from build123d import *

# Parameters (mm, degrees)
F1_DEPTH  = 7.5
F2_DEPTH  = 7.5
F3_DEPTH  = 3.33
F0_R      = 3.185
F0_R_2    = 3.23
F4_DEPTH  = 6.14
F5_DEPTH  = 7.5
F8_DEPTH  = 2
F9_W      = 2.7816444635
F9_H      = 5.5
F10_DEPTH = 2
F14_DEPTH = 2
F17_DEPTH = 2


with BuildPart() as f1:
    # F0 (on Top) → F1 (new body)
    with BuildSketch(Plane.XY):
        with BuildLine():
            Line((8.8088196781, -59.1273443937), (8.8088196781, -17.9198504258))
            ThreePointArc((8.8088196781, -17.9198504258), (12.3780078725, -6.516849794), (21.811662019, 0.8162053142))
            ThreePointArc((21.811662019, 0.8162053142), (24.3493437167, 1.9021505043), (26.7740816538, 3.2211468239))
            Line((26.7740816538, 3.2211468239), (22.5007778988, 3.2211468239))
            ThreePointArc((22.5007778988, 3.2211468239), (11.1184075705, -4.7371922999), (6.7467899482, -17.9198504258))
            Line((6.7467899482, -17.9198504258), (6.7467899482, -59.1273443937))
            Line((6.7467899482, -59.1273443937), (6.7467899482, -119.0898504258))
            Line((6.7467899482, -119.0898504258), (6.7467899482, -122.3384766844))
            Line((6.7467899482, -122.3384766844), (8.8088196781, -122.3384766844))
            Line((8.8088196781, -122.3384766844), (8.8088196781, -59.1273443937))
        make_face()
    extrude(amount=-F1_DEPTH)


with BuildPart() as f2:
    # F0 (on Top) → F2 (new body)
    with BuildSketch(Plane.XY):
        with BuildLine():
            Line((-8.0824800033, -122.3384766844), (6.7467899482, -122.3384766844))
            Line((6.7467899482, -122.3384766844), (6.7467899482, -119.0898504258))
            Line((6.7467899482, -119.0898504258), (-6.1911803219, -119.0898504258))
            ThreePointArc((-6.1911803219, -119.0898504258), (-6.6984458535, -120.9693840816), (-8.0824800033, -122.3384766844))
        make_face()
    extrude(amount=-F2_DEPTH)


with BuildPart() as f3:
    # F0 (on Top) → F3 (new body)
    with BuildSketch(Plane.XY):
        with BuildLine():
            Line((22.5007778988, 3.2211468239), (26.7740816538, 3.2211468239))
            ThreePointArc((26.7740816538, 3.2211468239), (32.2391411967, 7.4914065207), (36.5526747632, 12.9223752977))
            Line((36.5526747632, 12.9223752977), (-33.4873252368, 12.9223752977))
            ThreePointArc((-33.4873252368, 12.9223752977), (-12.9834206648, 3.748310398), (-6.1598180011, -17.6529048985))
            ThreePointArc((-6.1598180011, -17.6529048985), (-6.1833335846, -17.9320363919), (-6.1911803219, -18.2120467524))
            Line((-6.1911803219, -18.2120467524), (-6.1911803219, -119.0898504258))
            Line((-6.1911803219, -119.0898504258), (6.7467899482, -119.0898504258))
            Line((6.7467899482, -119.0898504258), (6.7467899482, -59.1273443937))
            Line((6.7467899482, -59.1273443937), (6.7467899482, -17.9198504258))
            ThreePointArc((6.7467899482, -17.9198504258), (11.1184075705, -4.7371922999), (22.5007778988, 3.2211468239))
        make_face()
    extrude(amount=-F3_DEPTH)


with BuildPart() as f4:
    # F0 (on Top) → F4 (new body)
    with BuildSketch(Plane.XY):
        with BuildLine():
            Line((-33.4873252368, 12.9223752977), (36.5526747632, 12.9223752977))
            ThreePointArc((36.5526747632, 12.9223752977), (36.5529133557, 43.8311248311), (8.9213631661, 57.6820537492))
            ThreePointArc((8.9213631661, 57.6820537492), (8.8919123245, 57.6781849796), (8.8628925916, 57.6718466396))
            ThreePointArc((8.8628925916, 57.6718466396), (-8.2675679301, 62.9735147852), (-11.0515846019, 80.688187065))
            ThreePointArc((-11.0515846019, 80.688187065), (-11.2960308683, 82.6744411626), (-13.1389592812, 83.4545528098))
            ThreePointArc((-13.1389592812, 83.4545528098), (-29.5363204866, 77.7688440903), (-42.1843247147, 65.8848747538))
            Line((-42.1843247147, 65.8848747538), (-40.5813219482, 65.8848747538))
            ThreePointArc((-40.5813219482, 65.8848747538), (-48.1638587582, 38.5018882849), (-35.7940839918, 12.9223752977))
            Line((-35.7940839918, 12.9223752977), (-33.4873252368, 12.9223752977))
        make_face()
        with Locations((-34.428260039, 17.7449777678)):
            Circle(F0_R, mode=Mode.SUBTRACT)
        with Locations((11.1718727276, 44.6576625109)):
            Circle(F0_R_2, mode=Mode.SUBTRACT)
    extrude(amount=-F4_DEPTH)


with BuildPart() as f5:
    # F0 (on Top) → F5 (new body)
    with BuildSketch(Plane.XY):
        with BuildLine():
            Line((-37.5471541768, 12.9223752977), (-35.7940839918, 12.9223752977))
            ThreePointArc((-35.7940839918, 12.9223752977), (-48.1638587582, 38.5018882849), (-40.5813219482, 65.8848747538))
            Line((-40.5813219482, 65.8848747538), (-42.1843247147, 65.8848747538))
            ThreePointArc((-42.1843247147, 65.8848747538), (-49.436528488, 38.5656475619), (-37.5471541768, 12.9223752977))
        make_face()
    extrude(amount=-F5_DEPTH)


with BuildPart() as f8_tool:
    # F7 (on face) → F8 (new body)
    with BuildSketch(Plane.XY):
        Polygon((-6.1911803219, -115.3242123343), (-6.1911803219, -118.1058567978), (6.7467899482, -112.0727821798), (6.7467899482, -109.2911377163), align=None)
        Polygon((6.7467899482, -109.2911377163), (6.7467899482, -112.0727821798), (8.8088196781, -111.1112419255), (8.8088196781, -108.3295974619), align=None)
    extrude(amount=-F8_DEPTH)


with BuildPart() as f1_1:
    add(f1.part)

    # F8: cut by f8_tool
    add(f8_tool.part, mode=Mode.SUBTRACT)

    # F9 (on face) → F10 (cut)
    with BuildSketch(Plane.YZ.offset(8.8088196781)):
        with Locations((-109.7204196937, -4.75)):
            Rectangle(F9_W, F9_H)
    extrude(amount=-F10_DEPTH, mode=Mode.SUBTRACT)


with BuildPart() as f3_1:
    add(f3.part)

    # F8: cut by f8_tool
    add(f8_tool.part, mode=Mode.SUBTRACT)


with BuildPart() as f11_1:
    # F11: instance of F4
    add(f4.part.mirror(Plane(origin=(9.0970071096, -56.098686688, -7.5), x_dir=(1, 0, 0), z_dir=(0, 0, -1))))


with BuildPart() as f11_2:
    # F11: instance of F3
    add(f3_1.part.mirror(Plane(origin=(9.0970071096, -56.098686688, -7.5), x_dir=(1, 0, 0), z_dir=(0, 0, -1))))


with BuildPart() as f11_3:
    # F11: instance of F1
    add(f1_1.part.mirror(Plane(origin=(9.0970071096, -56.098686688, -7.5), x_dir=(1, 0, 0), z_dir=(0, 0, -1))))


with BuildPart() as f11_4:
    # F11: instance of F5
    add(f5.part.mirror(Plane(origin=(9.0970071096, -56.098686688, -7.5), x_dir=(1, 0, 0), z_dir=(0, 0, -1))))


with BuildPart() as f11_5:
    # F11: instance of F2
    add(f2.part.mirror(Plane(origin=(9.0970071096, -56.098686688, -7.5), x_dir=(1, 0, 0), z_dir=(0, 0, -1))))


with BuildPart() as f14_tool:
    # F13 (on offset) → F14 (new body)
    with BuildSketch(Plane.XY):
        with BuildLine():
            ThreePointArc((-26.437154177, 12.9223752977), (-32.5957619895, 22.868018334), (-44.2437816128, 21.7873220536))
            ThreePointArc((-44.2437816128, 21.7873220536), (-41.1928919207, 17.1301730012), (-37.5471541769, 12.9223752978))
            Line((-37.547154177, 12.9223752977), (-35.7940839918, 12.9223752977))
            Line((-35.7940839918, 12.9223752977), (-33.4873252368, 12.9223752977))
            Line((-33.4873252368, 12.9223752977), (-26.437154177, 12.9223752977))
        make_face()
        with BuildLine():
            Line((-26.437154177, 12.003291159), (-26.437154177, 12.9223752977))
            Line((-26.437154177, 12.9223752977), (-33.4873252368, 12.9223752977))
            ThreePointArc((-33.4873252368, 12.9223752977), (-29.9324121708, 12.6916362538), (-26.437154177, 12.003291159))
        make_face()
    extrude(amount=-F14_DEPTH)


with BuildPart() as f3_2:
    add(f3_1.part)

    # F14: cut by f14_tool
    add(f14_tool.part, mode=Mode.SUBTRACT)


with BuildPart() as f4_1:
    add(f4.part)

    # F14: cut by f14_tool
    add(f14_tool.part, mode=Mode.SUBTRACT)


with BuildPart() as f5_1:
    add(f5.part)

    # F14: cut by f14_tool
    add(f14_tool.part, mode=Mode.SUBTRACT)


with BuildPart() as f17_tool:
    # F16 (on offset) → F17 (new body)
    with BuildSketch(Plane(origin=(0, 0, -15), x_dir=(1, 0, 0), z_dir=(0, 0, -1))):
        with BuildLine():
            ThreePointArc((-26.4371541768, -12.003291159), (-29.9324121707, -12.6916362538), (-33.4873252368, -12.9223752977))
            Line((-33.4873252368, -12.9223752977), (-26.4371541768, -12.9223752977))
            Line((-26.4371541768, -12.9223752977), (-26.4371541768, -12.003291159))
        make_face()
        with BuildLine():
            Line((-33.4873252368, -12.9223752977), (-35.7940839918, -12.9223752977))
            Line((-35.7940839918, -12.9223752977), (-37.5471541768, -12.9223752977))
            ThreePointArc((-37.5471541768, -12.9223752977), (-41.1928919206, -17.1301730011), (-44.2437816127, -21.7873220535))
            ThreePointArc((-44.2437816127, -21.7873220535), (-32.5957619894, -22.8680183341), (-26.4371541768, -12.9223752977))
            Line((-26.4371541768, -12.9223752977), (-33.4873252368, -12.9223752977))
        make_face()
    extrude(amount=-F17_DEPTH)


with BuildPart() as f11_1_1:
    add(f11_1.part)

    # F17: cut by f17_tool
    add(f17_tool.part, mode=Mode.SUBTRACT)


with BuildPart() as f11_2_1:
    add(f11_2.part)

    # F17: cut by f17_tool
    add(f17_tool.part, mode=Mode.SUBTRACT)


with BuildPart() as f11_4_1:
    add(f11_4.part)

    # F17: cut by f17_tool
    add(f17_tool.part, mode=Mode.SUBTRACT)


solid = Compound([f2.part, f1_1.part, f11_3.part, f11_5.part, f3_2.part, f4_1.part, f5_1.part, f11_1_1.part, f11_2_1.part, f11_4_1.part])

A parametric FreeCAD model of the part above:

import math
import FreeCAD as App
import Part
import Sketcher
Q = App.Units.Quantity


def add_polygon(sketch, points):
    """Adds a closed chain of lines whose ends are joined by coincident constraints."""
    first, n = sketch.GeometryCount, len(points)
    for a, b in zip(points, points[1:] + points[:1]):
        sketch.addGeometry(Part.LineSegment(App.Vector(*a, 0), App.Vector(*b, 0)), False)
    for i in range(n):
        sketch.addConstraint(Sketcher.Constraint("Coincident", first + i, 2, first + (i + 1) % n, 1))

doc = App.newDocument("Part")
body = doc.addObject("PartDesign::Body", "Body")

# Sketch on XY plane
sketch1 = body.newObject("Sketcher::SketchObject", "Sketch")
sketch1.AttachmentSupport = (doc.getObject("XY_Plane"), [""])
sketch1.MapMode = "FlatFace"
sketch1.addGeometry([
    Part.ArcOfCircle(Part.Circle(App.Vector(28.8, -17.9, 0), App.Vector(0, 0, 1), 20), math.radians(110), math.radians(180)),  # 0
    Part.ArcOfCircle(Part.Circle(App.Vector(11.5, 28.4, 0), App.Vector(0, 0, 1), 29.4), math.radians(-69.52), math.radians(-58.77)),  # 1
    Part.LineSegment(App.Vector(26.8, 3.2, 0), App.Vector(22.5, 3.2, 0)),  # 2
    Part.ArcOfCircle(Part.Circle(App.Vector(28.8, -17.9, 0), App.Vector(0, 0, 1), 22.1), math.radians(107), math.radians(180)),  # 3
    Part.LineSegment(App.Vector(6.7, -17.9, 0), App.Vector(6.7, -122.3, 0)),  # 4
    Part.LineSegment(App.Vector(6.7, -122.3, 0), App.Vector(8.8, -122.3, 0)),  # 5
    Part.LineSegment(App.Vector(8.8, -122.3, 0), App.Vector(8.8, -17.9, 0)),  # 6
], False)
sketch1.addConstraint([
    Sketcher.Constraint("Tangent", 0, 1, 1, 1),
    Sketcher.Constraint("Coincident", 1, 2, 2, 1),
    Sketcher.Constraint("Coincident", 2, 2, 3, 1),
    Sketcher.Constraint("Tangent", 3, 2, 4, 1),
    Sketcher.Constraint("Coincident", 4, 2, 5, 1),
    Sketcher.Constraint("Coincident", 5, 2, 6, 1),
    Sketcher.Constraint("Tangent", 6, 2, 0, 2),
    Sketcher.Constraint("Horizontal", 2),
    Sketcher.Constraint("Vertical", 4),
    Sketcher.Constraint("Horizontal", 5),
    Sketcher.Constraint("Vertical", 6),
    Sketcher.Constraint("Coincident", 3, 3, 0, 3),
    Sketcher.Constraint("Radius", 0, 20.0),
    Sketcher.Constraint("Radius", 1, 29.42),
    Sketcher.Constraint("Radius", 3, 22.06203),
    Sketcher.Constraint("DistanceX", 2, 2, 2, 1, 4.273304),
    Sketcher.Constraint("DistanceY", 4, 2, 4, 1, 104.418626),
    Sketcher.Constraint("DistanceX", -1, 1, 0, 3, 28.80882),
    Sketcher.Constraint("DistanceY", 0, 3, -1, 1, 17.91985),
    Sketcher.Constraint("DistanceX", -1, 1, 1, 2, 26.774082),
])
pad1 = body.newObject("PartDesign::Pad", "Pad")
pad1.Profile = sketch1
pad1.Length = 7.5
pad1.Reversed = True
body2 = doc.addObject("PartDesign::Body", "Body001")

# Sketch on XY plane
sketch2 = body2.newObject("Sketcher::SketchObject", "Sketch001")
sketch2.AttachmentSupport = (doc.getObject("XY_Plane001"), [""])
sketch2.MapMode = "FlatFace"
sketch2.addGeometry([
    Part.LineSegment(App.Vector(-8.1, -122.3, 0), App.Vector(6.7, -122.3, 0)),
    Part.LineSegment(App.Vector(6.7, -122.3, 0), App.Vector(6.7, -119.1, 0)),
    Part.LineSegment(App.Vector(6.7, -119.1, 0), App.Vector(-6.2, -119.1, 0)),
    Part.ArcOfCircle(Part.Circle(App.Vector(-9.9, -119.1, 0), App.Vector(0, 0, 1), 3.7), math.radians(-60), math.radians(0)),
], False)
sketch2.addConstraint([
    Sketcher.Constraint("Coincident", 0, 2, 1, 1),
    Sketcher.Constraint("Coincident", 1, 2, 2, 1),
    Sketcher.Constraint("Coincident", 2, 2, 3, 2),
    Sketcher.Constraint("Coincident", 3, 1, 0, 1),
    Sketcher.Constraint("Horizontal", 0),
    Sketcher.Constraint("Vertical", 1),
    Sketcher.Constraint("Horizontal", 2),
    Sketcher.Constraint("Horizontal", 3, 3, 1, 2),
    Sketcher.Constraint("Radius", 3, 3.735682),
    Sketcher.Constraint("DistanceX", 0, 1, 0, 2, 14.82927),
    Sketcher.Constraint("DistanceX", 2, 2, 2, 1, 12.93797),
    Sketcher.Constraint("DistanceX", 3, 3, -1, 1, 9.926862),
    Sketcher.Constraint("DistanceY", 3, 3, -1, 1, 119.08985),
])
pad2 = body2.newObject("PartDesign::Pad", "Pad001")
pad2.Profile = sketch2
pad2.Length = 7.5
pad2.Reversed = True
body3 = doc.addObject("PartDesign::Body", "Body002")

# Sketch on XY plane
sketch3 = body3.newObject("Sketcher::SketchObject", "Sketch002")
sketch3.AttachmentSupport = (doc.getObject("XY_Plane002"), [""])
sketch3.MapMode = "FlatFace"
sketch3.addGeometry([
    Part.LineSegment(App.Vector(22.5, 3.2, 0), App.Vector(26.8, 3.2, 0)),  # 0
    Part.ArcOfCircle(Part.Circle(App.Vector(11.5, 28.4, 0), App.Vector(0, 0, 1), 29.4), math.radians(-59), math.radians(-32)),  # 1
    Part.LineSegment(App.Vector(36.6, 12.9, 0), App.Vector(-33.5, 12.9, 0)),  # 2
    Part.ArcOfCircle(Part.Circle(App.Vector(-33.5, -14.6, 0), App.Vector(0, 0, 1), 27.5), math.radians(-6), math.radians(90)),  # 3
    Part.ArcOfCircle(Part.Circle(App.Vector(-1.2, -18.2, 0), App.Vector(0, 0, 1), 5), math.radians(173.58), math.radians(180)),  # 4
    Part.LineSegment(App.Vector(-6.2, -18.2, 0), App.Vector(-6.2, -119.1, 0)),  # 5
    Part.LineSegment(App.Vector(-6.2, -119.1, 0), App.Vector(6.7, -119.1, 0)),  # 6
    Part.LineSegment(App.Vector(6.7, -119.1, 0), App.Vector(6.7, -17.9, 0)),  # 7
    Part.ArcOfCircle(Part.Circle(App.Vector(28.8, -17.9, 0), App.Vector(0, 0, 1), 22.1), math.radians(107), math.radians(180)),  # 8
], False)
sketch3.addConstraint([
    Sketcher.Constraint("Coincident", 0, 2, 1, 1),
    Sketcher.Constraint("Coincident", 1, 2, 2, 1),
    Sketcher.Constraint("Tangent", 2, 2, 3, 2),
    Sketcher.Constraint("Tangent", 3, 1, 4, 1),
    Sketcher.Constraint("Tangent", 4, 2, 5, 1),
    Sketcher.Constraint("Coincident", 5, 2, 6, 1),
    Sketcher.Constraint("Coincident", 6, 2, 7, 1),
    Sketcher.Constraint("Tangent", 7, 2, 8, 2),
    Sketcher.Constraint("Coincident", 8, 1, 0, 1),
    Sketcher.Constraint("Horizontal", 0),
    Sketcher.Constraint("Horizontal", 2),
    Sketcher.Constraint("Vertical", 5),
    Sketcher.Constraint("Horizontal", 6),
    Sketcher.Constraint("Vertical", 7),
    Sketcher.Constraint("Radius", 4, 5.0),
    Sketcher.Constraint("Radius", 3, 27.5),
    Sketcher.Constraint("Radius", 1, 29.42),
    Sketcher.Constraint("DistanceX", 4, 3, 8, 3, 30.0),
    Sketcher.Constraint("DistanceX", 2, 2, 2, 1, 70.04),
    Sketcher.Constraint("DistanceY", 7, 1, 7, 2, 101.17),
    Sketcher.Constraint("Radius", 8, 22.06203),
    Sketcher.Constraint("DistanceX", 3, 1, 0, 2, 32.9339),
    Sketcher.Constraint("DistanceX", 0, 1, 0, 2, 4.273304),
    Sketcher.Constraint("DistanceY", 5, 2, 5, 1, 100.877804),
    Sketcher.Constraint("DistanceX", 4, 3, -1, 1, 1.19118),
    Sketcher.Constraint("DistanceY", 8, 3, -1, 1, 17.91985),
    Sketcher.Constraint("DistanceX", -1, 1, 0, 2, 26.774082),
])
pad3 = body3.newObject("PartDesign::Pad", "Pad002")
pad3.Profile = sketch3
pad3.Length = 3.33
pad3.Reversed = True
body4 = doc.addObject("PartDesign::Body", "Body003")

# Sketch on XY plane
sketch4 = body4.newObject("Sketcher::SketchObject", "Sketch003")
sketch4.AttachmentSupport = (doc.getObject("XY_Plane003"), [""])
sketch4.MapMode = "FlatFace"
sketch4.addGeometry([
    Part.ArcOfCircle(Part.Circle(App.Vector(11.52, 28.38, 0), App.Vector(0, 0, 1), 29.42), math.radians(-32), math.radians(95)),  # 0
    Part.ArcOfCircle(Part.Circle(App.Vector(8.95, 57.33, 0), App.Vector(0, 0, 1), 0.35), math.radians(95.07), math.radians(104.74)),  # 1
    Part.ArcOfCircle(Part.Circle(App.Vector(4.55, 74.06, 0), App.Vector(0, 0, 1), 16.95), math.radians(157), math.radians(285)),  # 2
    Part.ArcOfCircle(Part.Circle(App.Vector(-12.89, 81.47, 0), App.Vector(0, 0, 1), 2), math.radians(-23), math.radians(97)),  # 3
    Part.ArcOfCircle(Part.Circle(App.Vector(-8.02, 42.19, 0), App.Vector(0, 0, 1), 41.58), math.radians(97), math.radians(145)),  # 4
    Part.LineSegment(App.Vector(-42.18, 65.88, 0), App.Vector(-40.58, 65.88, 0)),  # 5
    Part.ArcOfCircle(Part.Circle(App.Vector(-8.03, 42.13, 0), App.Vector(0, 0, 1), 40.3), math.radians(144), math.radians(226)),  # 6
    Part.LineSegment(App.Vector(-35.79, 12.92, 0), App.Vector(36.55, 12.92, 0)),  # 7
    Part.Circle(App.Vector(-34.43, 17.74, 0), App.Vector(0, 0, 1), 3.19),  # 8
    Part.Circle(App.Vector(11.17, 44.66, 0), App.Vector(0, 0, 1), 3.23),  # 9
], False)
sketch4.addConstraint([
    Sketcher.Constraint("Tangent", 0, 2, 1, 1),
    Sketcher.Constraint("Tangent", 1, 2, 2, 2),
    Sketcher.Constraint("Tangent", 2, 1, 3, 1),
    Sketcher.Constraint("Tangent", 3, 2, 4, 1),
    Sketcher.Constraint("Coincident", 4, 2, 5, 1),
    Sketcher.Constraint("Coincident", 5, 2, 6, 1),
    Sketcher.Constraint("Coincident", 6, 2, 7, 1),
    Sketcher.Constraint("Coincident", 7, 2, 0, 1),
    Sketcher.Constraint("Horizontal", 5),
    Sketcher.Constraint("Horizontal", 7),
    Sketcher.Constraint("Radius", 3, 2.0),
    Sketcher.Constraint("Diameter", 8, 6.37),
    Sketcher.Constraint("Diameter", 9, 6.46),
    Sketcher.Constraint("Radius", 0, 29.42),
    Sketcher.Constraint("Radius", 2, 16.95),
    Sketcher.Constraint("Radius", 4, 41.579112),
    Sketcher.Constraint("Radius", 1, 0.351954),
    Sketcher.Constraint("Radius", 6, 40.298333),
    Sketcher.Constraint("DistanceX", 7, 1, 7, 2, 72.346759),
    Sketcher.Constraint("DistanceY", 4, 3, 9, 3, 2.4654),
    Sketcher.Constraint("DistanceY", 0, 2, 3, 2, 25.772499),
    Sketcher.Constraint("DistanceY", 6, 2, 5, 2, 52.962499),
    Sketcher.Constraint("DistanceY", 7, 2, 1, 3, 44.409099),
    Sketcher.Constraint("DistanceX", 5, 1, 5, 2, 1.603003),
    Sketcher.Constraint("DistanceX", -1, 1, 2, 3, 4.550458),
    Sketcher.Constraint("DistanceX", 4, 3, -1, 1, 8.015879),
    Sketcher.Constraint("DistanceX", 8, 3, -1, 1, 34.42826),
    Sketcher.Constraint("DistanceX", 3, 2, -1, 1, 13.138959),
    Sketcher.Constraint("DistanceY", 0, 3, 1, 3, 28.954531),
    Sketcher.Constraint("DistanceX", 9, 3, 0, 3, 0.34697),
    Sketcher.Constraint("DistanceY", -1, 1, 0, 3, 28.376943),
    Sketcher.Constraint("DistanceY", -1, 1, 8, 3, 17.744978),
])
pad4 = body4.newObject("PartDesign::Pad", "Pad003")
pad4.Profile = sketch4
pad4.Length = 6.14
pad4.Reversed = True
body5 = doc.addObject("PartDesign::Body", "Body004")

# Sketch on XY plane
sketch5 = body5.newObject("Sketcher::SketchObject", "Sketch004")
sketch5.AttachmentSupport = (doc.getObject("XY_Plane004"), [""])
sketch5.MapMode = "FlatFace"
sketch5.addGeometry([
    Part.LineSegment(App.Vector(-37.5, 12.9, 0), App.Vector(-35.8, 12.9, 0)),
    Part.ArcOfCircle(Part.Circle(App.Vector(-8, 42.1, 0), App.Vector(0, 0, 1), 40.3), math.radians(144), math.radians(226)),
    Part.LineSegment(App.Vector(-40.6, 65.9, 0), App.Vector(-42.2, 65.9, 0)),
    Part.ArcOfCircle(Part.Circle(App.Vector(-8, 42.2, 0), App.Vector(0, 0, 1), 41.6), math.radians(145), math.radians(225)),
], False)
sketch5.addConstraint([
    Sketcher.Constraint("Coincident", 0, 2, 1, 2),
    Sketcher.Constraint("Coincident", 1, 1, 2, 1),
    Sketcher.Constraint("Coincident", 2, 2, 3, 1),
    Sketcher.Constraint("Coincident", 3, 2, 0, 1),
    Sketcher.Constraint("Horizontal", 0),
    Sketcher.Constraint("Horizontal", 2),
    Sketcher.Constraint("Radius", 3, 41.579112),
    Sketcher.Constraint("Radius", 1, 40.298333),
    Sketcher.Constraint("DistanceX", 0, 1, 0, 2, 1.75307),
    Sketcher.Constraint("DistanceY", 0, 2, 1, 1, 52.962499),
    Sketcher.Constraint("DistanceX", 2, 2, 2, 1, 1.603003),
    Sketcher.Constraint("DistanceX", 3, 3, -1, 1, 8.015879),
    Sketcher.Constraint("DistanceX", 1, 1, -1, 1, 40.581322),
    Sketcher.Constraint("DistanceY", -1, 1, 1, 3, 42.129633),
])
pad5 = body5.newObject("PartDesign::Pad", "Pad004")
pad5.Profile = sketch5
pad5.Length = 7.5
pad5.Reversed = True
body6 = doc.addObject("PartDesign::Body", "Body005")

# Sketch on XY plane
sketch6 = body6.newObject("Sketcher::SketchObject", "Sketch005")
sketch6.AttachmentSupport = (doc.getObject("XY_Plane005"), [""])
sketch6.MapMode = "FlatFace"
add_polygon(sketch6, [(-6.2, -115.3), (-6.2, -118.1), (6.7, -112.1), (8.8, -111.1), (8.8, -108.3), (6.7, -109.3)])  # lines 0-5
sketch6.addConstraint([
    Sketcher.Constraint("Vertical", 0),
    Sketcher.Constraint("Vertical", 3),
    Sketcher.Constraint("Parallel", 1, 2),
    Sketcher.Constraint("Parallel", 2, 4),
    Sketcher.Constraint("Parallel", 4, 5),
    Sketcher.Constraint("Vertical", 1, 2, 4, 2),
    Sketcher.Constraint("Angle", 1, Q("25 deg")),
    Sketcher.Constraint("DistanceX", 0, 2, 2, 2, 15.0),
    Sketcher.Constraint("Distance", 2, 2.275198),
    Sketcher.Constraint("DistanceY", 0, 2, 0, 1, 2.781644),
    Sketcher.Constraint("DistanceX", 0, 2, -1, 1, 6.19118),
    Sketcher.Constraint("DistanceY", 2, 2, -1, 1, 111.111242),
])
pad6 = body6.newObject("PartDesign::Pad", "Pad005")
pad6.Profile = sketch6
pad6.Length = 2
pad6.Reversed = True
doc.recompute()

body7 = doc.addObject("PartDesign::Body", "Body006")
body7.BaseFeature = body6
boolean = body.newObject("PartDesign::Boolean", "Boolean")
boolean.Type = "Cut"
boolean.addObjects([body7])
doc.recompute()

# Sketch on YZ plane
sketch7 = body.newObject("Sketcher::SketchObject", "Sketch006")
sketch7.AttachmentSupport = (doc.getObject("YZ_Plane"), [""])
sketch7.MapMode = "FlatFace"
sketch7.AttachmentOffset = App.Placement(App.Vector(0, 0, 8.80882), App.Rotation())
add_polygon(sketch7, [(-111.1, -2), (-111.1, -7.5), (-108.3, -7.5), (-108.3, -2)])  # lines 0-3
sketch7.addConstraint([
    Sketcher.Constraint("Vertical", 0),
    Sketcher.Constraint("Horizontal", 1),
    Sketcher.Constraint("Vertical", 2),
    Sketcher.Constraint("Horizontal", 3),
    Sketcher.Constraint("DistanceY", 0, 2, 0, 1, 5.5),
    Sketcher.Constraint("DistanceY", 2, 2, -1, 1, 2.0),
    Sketcher.Constraint("DistanceX", 1, 1, 1, 2, 2.781644),
    Sketcher.Constraint("DistanceX", 0, 2, -1, 1, 111.111242),
])
pocket1 = body.newObject("PartDesign::Pocket", "Pocket")
pocket1.Profile = sketch7
pocket1.Length = 2
doc.recompute()

boolean2 = body3.newObject("PartDesign::Boolean", "Boolean001")
boolean2.Type = "Cut"
boolean2.addObjects([body6])
body8 = doc.addObject("PartDesign::Body", "Body007")
doc.recompute()

mirroring = doc.addObject("Part::Mirroring", "Mirroring")
mirroring.Source = body4
mirroring.Base = App.Vector(9.097007, -56.098687, -7.5)
mirroring.Normal = App.Vector(0, 0, -1)
body8.BaseFeature = mirroring
doc.recompute()
body9 = doc.addObject("PartDesign::Body", "Body008")
doc.recompute()

mirroring2 = doc.addObject("Part::Mirroring", "Mirroring001")
mirroring2.Source = body3
mirroring2.Base = App.Vector(9.097007, -56.098687, -7.5)
mirroring2.Normal = App.Vector(0, 0, -1)
body9.BaseFeature = mirroring2
doc.recompute()
body10 = doc.addObject("PartDesign::Body", "Body009")
doc.recompute()

mirroring3 = doc.addObject("Part::Mirroring", "Mirroring002")
mirroring3.Source = body
mirroring3.Base = App.Vector(9.097007, -56.098687, -7.5)
mirroring3.Normal = App.Vector(0, 0, -1)
body10.BaseFeature = mirroring3
doc.recompute()
body11 = doc.addObject("PartDesign::Body", "Body010")
doc.recompute()

mirroring4 = doc.addObject("Part::Mirroring", "Mirroring003")
mirroring4.Source = body5
mirroring4.Base = App.Vector(9.097007, -56.098687, -7.5)
mirroring4.Normal = App.Vector(0, 0, -1)
body11.BaseFeature = mirroring4
doc.recompute()
body12 = doc.addObject("PartDesign::Body", "Body011")
doc.recompute()

mirroring5 = doc.addObject("Part::Mirroring", "Mirroring004")
mirroring5.Source = body2
mirroring5.Base = App.Vector(9.097007, -56.098687, -7.5)
mirroring5.Normal = App.Vector(0, 0, -1)
body12.BaseFeature = mirroring5
doc.recompute()
body13 = doc.addObject("PartDesign::Body", "Body012")

# Sketch on XY plane
sketch8 = body13.newObject("Sketcher::SketchObject", "Sketch007")
sketch8.AttachmentSupport = (doc.getObject("XY_Plane012"), [""])
sketch8.MapMode = "FlatFace"
sketch8.addGeometry([
    Part.ArcOfCircle(Part.Circle(App.Vector(-37.5, 12.9, 0), App.Vector(0, 0, 1), 11.1), math.radians(0), math.radians(127)),  # 0
    Part.ArcOfCircle(Part.Circle(App.Vector(-8, 42.2, 0), App.Vector(0, 0, 1), 41.6), math.radians(-150.61), math.radians(-135.25)),  # 1
    Part.LineSegment(App.Vector(-37.5, 12.9, 0), App.Vector(-33.5, 12.9, 0)),  # 2
    Part.ArcOfCircle(Part.Circle(App.Vector(-33.5, -14.6, 0), App.Vector(0, 0, 1), 27.5), math.radians(75.15), math.radians(90)),  # 3
    Part.LineSegment(App.Vector(-26.4, 12, 0), App.Vector(-26.4, 12.9, 0)),  # 4
], False)
sketch8.addConstraint([
    Sketcher.Constraint("Coincident", 0, 2, 1, 1),
    Sketcher.Constraint("Coincident", 1, 2, 2, 1),
    Sketcher.Constraint("Tangent", 2, 2, 3, 2),
    Sketcher.Constraint("Coincident", 3, 1, 4, 1),
    Sketcher.Constraint("Tangent", 4, 2, 0, 1),
    Sketcher.Constraint("Horizontal", 2),
    Sketcher.Constraint("Vertical", 4),
    Sketcher.Constraint("Coincident", 1, 2, 0, 3),
    Sketcher.Constraint("Radius", 3, 27.5),
    Sketcher.Constraint("Radius", 0, 11.11),
    Sketcher.Constraint("Radius", 1, 41.579112),
    Sketcher.Constraint("DistanceX", 2, 1, 2, 2, 4.059829),
    Sketcher.Constraint("DistanceX", 1, 3, -1, 1, 8.015879),
    Sketcher.Constraint("DistanceX", 0, 2, -1, 1, 44.243782),
    Sketcher.Constraint("DistanceY", -1, 1, 3, 1, 12.003291),
])
pad7 = body13.newObject("PartDesign::Pad", "Pad006")
pad7.Profile = sketch8
pad7.Length = 2
pad7.Reversed = True
doc.recompute()

body14 = doc.addObject("PartDesign::Body", "Body013")
body14.BaseFeature = body13
boolean3 = body3.newObject("PartDesign::Boolean", "Boolean002")
boolean3.Type = "Cut"
boolean3.addObjects([body14])
doc.recompute()

body15 = doc.addObject("PartDesign::Body", "Body014")
body15.BaseFeature = body13
boolean4 = body4.newObject("PartDesign::Boolean", "Boolean003")
boolean4.Type = "Cut"
boolean4.addObjects([body15])
doc.recompute()

boolean5 = body5.newObject("PartDesign::Boolean", "Boolean004")
boolean5.Type = "Cut"
boolean5.addObjects([body13])
body16 = doc.addObject("PartDesign::Body", "Body015")

# Sketch on XY plane
sketch9 = body16.newObject("Sketcher::SketchObject", "Sketch008")
sketch9.AttachmentSupport = (doc.getObject("XY_Plane015"), [""])
sketch9.MapMode = "FlatFace"
sketch9.AttachmentOffset = App.Placement(App.Vector(0, 0, -15), App.Rotation())
sketch9.addGeometry([
    Part.ArcOfCircle(Part.Circle(App.Vector(-33.5, -14.6, 0), App.Vector(0, 0, 1), 27.5), math.radians(75.15), math.radians(90)),  # 0
    Part.LineSegment(App.Vector(-33.5, 12.9, 0), App.Vector(-37.5, 12.9, 0)),  # 1
    Part.ArcOfCircle(Part.Circle(App.Vector(-8, 42.2, 0), App.Vector(0, 0, 1), 41.6), math.radians(-150.61), math.radians(-135.25)),  # 2
    Part.ArcOfCircle(Part.Circle(App.Vector(-37.5, 12.9, 0), App.Vector(0, 0, 1), 11.1), math.radians(0), math.radians(127)),  # 3
    Part.LineSegment(App.Vector(-26.4, 12.9, 0), App.Vector(-26.4, 12, 0)),  # 4
], False)
sketch9.addConstraint([
    Sketcher.Constraint("Tangent", 0, 2, 1, 1),
    Sketcher.Constraint("Coincident", 1, 2, 2, 2),
    Sketcher.Constraint("Coincident", 2, 1, 3, 2),
    Sketcher.Constraint("Tangent", 3, 1, 4, 1),
    Sketcher.Constraint("Coincident", 4, 2, 0, 1),
    Sketcher.Constraint("Horizontal", 1),
    Sketcher.Constraint("Vertical", 4),
    Sketcher.Constraint("Coincident", 1, 2, 3, 3),
    Sketcher.Constraint("Radius", 0, 27.5),
    Sketcher.Constraint("Radius", 3, 11.11),
    Sketcher.Constraint("Radius", 2, 41.579112),
    Sketcher.Constraint("DistanceX", 1, 2, 1, 1, 4.059829),
    Sketcher.Constraint("DistanceX", 2, 3, -1, 1, 8.015879),
    Sketcher.Constraint("DistanceX", 2, 1, -1, 1, 44.243782),
    Sketcher.Constraint("DistanceY", -1, 1, 4, 2, 12.003291),
])
pad8 = body16.newObject("PartDesign::Pad", "Pad007")
pad8.Profile = sketch9
pad8.Length = 2
doc.recompute()

body17 = doc.addObject("PartDesign::Body", "Body016")
body17.BaseFeature = body16
boolean6 = body8.newObject("PartDesign::Boolean", "Boolean005")
boolean6.Type = "Cut"
boolean6.addObjects([body17])
doc.recompute()

body18 = doc.addObject("PartDesign::Body", "Body017")
body18.BaseFeature = body16
boolean7 = body9.newObject("PartDesign::Boolean", "Boolean006")
boolean7.Type = "Cut"
boolean7.addObjects([body18])
doc.recompute()

boolean8 = body11.newObject("PartDesign::Boolean", "Boolean007")
boolean8.Type = "Cut"
boolean8.addObjects([body16])
mirroring.Visibility = False
mirroring2.Visibility = False
mirroring3.Visibility = False
mirroring4.Visibility = False
mirroring5.Visibility = False

doc.recompute()
